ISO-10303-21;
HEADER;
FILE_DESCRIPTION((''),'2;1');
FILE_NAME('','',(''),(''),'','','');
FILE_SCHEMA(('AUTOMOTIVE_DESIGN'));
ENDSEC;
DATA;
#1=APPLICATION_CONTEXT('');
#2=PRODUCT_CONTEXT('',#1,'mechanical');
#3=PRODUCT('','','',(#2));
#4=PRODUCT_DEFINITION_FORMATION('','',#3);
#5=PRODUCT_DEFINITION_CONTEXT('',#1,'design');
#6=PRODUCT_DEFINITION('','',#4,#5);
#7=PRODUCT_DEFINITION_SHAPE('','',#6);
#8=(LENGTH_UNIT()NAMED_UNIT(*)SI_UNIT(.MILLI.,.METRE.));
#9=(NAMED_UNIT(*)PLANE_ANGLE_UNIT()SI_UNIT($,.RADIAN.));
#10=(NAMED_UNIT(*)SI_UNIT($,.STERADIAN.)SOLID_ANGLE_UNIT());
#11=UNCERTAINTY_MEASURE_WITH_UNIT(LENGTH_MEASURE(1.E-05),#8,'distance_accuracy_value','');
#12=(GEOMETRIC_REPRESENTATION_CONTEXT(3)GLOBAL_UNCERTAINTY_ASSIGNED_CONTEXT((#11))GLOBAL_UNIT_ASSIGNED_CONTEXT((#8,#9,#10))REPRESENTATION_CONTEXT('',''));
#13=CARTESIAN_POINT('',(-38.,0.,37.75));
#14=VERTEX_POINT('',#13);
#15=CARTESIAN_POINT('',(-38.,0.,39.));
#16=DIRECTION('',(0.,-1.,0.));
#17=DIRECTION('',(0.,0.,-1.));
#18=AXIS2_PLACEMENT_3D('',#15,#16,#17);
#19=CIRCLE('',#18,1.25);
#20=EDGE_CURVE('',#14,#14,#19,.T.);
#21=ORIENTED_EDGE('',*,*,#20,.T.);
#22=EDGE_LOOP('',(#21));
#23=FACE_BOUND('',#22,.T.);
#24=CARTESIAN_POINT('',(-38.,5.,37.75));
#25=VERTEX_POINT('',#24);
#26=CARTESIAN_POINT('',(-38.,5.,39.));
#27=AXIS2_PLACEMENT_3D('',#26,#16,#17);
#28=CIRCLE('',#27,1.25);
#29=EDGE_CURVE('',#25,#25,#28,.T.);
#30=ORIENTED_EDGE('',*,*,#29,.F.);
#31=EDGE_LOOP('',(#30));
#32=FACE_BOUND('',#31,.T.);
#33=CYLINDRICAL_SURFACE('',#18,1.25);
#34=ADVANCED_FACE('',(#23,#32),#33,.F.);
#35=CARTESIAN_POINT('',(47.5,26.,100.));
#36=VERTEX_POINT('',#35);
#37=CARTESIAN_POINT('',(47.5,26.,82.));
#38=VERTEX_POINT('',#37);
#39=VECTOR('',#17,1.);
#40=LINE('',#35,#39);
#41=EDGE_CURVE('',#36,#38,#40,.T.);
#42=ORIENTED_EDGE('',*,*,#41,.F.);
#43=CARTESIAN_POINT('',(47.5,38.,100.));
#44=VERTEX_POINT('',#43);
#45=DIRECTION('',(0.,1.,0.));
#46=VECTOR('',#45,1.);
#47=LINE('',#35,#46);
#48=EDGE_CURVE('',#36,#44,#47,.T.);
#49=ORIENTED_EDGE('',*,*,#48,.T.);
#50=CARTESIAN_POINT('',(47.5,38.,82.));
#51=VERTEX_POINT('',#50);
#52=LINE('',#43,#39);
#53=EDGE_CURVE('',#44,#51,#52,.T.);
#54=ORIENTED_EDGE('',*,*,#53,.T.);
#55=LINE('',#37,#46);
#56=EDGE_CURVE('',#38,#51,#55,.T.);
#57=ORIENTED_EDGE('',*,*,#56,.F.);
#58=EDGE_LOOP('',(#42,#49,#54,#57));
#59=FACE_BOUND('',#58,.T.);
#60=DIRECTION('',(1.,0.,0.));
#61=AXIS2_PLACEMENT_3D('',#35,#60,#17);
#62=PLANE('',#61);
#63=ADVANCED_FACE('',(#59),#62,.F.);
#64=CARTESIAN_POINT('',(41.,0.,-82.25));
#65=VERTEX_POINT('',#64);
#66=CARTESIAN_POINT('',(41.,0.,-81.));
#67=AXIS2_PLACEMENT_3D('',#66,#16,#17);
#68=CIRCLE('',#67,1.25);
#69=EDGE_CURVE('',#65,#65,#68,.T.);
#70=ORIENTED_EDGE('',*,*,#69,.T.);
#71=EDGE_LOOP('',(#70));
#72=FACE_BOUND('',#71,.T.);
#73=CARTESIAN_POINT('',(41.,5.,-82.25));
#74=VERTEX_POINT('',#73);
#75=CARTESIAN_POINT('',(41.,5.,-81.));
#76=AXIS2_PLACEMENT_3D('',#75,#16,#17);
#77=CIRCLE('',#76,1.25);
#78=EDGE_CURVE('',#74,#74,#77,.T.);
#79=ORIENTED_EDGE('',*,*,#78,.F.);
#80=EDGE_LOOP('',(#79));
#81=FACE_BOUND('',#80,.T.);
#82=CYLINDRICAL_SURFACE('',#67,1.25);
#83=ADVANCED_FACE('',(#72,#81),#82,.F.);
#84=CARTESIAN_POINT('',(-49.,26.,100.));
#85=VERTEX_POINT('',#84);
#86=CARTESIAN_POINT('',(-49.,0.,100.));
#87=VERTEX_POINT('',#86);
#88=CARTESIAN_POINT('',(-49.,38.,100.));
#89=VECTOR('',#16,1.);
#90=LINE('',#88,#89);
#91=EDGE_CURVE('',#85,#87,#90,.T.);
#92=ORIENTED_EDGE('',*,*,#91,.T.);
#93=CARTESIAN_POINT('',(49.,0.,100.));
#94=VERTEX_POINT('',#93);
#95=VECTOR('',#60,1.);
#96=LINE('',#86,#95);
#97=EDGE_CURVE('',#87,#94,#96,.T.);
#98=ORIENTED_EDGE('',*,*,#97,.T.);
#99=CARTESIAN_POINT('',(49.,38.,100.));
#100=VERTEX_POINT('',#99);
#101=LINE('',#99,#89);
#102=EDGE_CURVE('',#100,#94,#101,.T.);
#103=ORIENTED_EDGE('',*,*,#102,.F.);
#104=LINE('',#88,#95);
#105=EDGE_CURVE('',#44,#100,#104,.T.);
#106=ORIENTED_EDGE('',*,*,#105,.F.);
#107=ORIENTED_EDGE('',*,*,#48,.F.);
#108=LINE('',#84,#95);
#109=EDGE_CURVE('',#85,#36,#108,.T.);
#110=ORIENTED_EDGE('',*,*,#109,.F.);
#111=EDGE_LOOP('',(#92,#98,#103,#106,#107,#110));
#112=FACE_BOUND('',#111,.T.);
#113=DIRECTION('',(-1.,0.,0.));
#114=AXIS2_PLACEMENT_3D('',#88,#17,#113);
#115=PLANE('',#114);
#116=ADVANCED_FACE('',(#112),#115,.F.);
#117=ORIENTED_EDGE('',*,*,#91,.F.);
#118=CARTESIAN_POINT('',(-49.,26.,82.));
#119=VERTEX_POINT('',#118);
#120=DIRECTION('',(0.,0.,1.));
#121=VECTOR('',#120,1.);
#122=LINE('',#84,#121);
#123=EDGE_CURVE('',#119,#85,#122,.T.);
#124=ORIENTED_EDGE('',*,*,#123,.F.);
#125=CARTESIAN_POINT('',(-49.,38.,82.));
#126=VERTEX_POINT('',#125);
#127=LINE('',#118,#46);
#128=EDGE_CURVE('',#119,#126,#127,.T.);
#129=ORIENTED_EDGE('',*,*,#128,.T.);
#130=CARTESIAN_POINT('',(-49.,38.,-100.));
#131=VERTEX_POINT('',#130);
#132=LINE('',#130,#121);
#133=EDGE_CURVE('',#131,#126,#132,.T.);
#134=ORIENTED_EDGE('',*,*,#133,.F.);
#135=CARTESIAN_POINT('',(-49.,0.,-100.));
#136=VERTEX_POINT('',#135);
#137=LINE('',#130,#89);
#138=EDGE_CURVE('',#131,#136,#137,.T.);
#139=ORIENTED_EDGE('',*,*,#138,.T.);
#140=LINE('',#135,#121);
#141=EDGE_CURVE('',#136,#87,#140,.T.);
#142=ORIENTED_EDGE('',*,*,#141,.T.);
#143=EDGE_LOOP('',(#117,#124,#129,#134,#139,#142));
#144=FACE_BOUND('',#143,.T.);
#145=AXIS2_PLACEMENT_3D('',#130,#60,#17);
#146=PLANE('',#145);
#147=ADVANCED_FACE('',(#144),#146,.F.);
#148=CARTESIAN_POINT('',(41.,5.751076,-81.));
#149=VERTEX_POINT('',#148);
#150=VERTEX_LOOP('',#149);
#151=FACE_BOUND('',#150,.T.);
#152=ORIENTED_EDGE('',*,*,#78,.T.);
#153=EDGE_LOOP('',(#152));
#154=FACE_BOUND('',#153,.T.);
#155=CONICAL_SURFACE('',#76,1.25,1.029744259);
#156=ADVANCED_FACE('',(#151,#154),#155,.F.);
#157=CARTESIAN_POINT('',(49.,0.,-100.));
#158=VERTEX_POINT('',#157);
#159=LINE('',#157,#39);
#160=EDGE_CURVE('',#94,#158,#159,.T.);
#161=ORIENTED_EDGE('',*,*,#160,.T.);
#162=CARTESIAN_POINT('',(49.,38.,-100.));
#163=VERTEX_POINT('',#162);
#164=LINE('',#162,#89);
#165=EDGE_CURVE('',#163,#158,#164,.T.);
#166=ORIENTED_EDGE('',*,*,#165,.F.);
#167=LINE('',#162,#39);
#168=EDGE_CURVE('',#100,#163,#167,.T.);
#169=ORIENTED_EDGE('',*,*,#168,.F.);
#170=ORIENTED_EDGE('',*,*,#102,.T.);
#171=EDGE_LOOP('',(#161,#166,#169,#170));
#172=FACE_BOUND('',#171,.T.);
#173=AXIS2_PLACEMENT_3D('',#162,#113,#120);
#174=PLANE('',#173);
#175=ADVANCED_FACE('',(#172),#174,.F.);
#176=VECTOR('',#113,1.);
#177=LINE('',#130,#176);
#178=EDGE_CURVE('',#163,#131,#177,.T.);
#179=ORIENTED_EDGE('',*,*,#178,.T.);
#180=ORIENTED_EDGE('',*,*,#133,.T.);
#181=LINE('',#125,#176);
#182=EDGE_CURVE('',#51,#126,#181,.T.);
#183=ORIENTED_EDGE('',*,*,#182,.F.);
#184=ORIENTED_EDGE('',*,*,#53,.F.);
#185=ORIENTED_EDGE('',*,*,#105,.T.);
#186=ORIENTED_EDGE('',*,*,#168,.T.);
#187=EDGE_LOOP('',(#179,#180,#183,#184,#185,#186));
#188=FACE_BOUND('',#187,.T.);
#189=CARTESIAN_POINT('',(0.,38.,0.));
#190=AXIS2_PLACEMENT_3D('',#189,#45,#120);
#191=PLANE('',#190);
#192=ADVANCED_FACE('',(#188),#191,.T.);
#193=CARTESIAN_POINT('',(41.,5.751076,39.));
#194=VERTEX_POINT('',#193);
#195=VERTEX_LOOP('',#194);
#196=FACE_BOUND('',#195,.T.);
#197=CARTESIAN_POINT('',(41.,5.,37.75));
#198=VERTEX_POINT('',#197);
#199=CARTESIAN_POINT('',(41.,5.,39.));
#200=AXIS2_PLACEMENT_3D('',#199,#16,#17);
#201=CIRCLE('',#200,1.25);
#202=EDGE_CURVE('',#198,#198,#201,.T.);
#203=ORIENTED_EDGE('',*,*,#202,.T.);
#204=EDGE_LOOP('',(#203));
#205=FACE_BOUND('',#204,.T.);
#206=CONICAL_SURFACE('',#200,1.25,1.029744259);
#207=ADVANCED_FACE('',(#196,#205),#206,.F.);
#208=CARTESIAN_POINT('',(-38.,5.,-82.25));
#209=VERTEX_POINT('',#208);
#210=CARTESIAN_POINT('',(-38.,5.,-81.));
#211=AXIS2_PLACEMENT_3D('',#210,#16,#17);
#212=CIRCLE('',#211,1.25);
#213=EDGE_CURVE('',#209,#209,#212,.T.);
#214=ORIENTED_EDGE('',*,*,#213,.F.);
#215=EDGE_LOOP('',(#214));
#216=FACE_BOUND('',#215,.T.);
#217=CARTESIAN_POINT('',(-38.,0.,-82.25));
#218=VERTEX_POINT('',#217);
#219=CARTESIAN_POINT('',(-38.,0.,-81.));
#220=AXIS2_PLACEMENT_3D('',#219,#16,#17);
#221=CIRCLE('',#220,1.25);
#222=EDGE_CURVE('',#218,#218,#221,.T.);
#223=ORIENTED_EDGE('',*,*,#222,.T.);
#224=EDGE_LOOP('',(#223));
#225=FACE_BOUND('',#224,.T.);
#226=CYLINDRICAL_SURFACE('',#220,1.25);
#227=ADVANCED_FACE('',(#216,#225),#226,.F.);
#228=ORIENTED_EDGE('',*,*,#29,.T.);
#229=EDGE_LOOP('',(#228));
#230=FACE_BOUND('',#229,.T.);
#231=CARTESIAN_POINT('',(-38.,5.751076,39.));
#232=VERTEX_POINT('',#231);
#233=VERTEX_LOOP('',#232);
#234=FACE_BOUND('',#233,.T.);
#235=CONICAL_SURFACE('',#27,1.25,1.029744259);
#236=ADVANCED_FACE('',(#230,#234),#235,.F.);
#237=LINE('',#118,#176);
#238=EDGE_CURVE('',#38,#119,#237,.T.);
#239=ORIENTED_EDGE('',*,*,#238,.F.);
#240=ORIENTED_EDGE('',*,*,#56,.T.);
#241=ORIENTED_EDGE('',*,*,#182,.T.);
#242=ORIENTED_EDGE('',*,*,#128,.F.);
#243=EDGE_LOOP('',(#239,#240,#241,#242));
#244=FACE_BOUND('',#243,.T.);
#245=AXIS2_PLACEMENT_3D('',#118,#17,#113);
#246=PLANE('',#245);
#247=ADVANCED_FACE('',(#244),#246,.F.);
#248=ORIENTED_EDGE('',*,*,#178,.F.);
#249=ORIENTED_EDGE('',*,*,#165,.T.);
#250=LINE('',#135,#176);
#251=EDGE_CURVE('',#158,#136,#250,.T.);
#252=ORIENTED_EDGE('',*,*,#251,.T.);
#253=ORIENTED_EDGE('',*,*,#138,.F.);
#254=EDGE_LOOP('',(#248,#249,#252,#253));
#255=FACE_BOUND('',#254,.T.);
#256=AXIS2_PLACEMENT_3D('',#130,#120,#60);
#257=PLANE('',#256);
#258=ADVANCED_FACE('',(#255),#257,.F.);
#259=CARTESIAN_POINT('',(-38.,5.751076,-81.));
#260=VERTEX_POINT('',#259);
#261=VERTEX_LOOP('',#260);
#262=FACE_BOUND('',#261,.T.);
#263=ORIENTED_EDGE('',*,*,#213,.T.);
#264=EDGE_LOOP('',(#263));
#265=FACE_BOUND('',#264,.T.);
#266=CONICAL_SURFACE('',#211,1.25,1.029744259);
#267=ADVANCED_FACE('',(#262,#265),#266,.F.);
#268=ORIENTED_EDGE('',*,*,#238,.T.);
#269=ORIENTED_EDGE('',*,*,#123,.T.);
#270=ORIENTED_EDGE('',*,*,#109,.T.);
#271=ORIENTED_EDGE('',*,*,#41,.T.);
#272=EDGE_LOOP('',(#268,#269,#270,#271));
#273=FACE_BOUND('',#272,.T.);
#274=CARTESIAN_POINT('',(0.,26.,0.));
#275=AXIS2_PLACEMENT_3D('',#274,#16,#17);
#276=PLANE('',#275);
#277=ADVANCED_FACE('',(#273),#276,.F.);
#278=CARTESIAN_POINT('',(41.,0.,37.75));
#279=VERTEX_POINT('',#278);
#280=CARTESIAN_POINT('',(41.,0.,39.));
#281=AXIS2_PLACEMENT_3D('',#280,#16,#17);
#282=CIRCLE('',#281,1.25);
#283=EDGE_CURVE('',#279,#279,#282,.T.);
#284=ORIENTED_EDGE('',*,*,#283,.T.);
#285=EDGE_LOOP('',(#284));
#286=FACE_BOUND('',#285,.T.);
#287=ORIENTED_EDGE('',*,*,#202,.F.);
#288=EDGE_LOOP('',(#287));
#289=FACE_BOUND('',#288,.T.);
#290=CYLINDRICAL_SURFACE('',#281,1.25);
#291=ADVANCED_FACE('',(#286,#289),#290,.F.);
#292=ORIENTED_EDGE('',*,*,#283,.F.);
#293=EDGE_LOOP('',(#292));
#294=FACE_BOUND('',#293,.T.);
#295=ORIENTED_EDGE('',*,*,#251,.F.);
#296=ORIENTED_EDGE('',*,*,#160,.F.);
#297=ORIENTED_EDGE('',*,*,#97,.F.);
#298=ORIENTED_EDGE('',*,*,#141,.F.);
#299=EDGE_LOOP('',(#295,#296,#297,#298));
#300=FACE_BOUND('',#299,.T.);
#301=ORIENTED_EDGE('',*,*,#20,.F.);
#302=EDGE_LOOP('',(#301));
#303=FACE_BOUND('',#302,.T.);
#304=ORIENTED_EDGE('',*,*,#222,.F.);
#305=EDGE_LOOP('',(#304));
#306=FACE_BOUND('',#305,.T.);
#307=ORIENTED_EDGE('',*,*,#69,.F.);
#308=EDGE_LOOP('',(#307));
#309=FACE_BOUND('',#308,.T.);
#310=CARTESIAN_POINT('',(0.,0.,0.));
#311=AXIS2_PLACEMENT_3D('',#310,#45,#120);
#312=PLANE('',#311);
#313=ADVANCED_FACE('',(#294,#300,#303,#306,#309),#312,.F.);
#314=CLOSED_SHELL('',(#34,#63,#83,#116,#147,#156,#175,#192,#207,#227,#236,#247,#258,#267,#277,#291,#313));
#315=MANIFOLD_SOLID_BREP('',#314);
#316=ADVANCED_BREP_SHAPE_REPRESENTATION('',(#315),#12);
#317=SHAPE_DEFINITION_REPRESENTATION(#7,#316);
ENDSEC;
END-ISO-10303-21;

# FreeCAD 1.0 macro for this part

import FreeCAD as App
import Part
import Sketcher
from FreeCAD import Vector
Q = App.Units.Quantity


def add_polygon(sketch, points):
    """Adds a closed chain of lines whose ends are joined by coincident constraints."""
    first, n = sketch.GeometryCount, len(points)
    for a, b in zip(points, points[1:] + points[:1]):
        sketch.addGeometry(Part.LineSegment(App.Vector(*a, 0), App.Vector(*b, 0)), False)
    for i in range(n):
        sketch.addConstraint(Sketcher.Constraint("Coincident", first + i, 2, first + (i + 1) % n, 1))

doc = App.newDocument("Part")
body = doc.addObject("PartDesign::Body", "Body")

# Sketch on XZ plane
sketch1 = body.newObject("Sketcher::SketchObject", "Sketch")
sketch1.AttachmentSupport = (doc.getObject("XZ_Plane"), [""])
sketch1.MapMode = "FlatFace"
add_polygon(sketch1, [(-49, -100), (-49, 100), (49, 100), (49, -100)])  # lines 0-3
sketch1.addConstraint([
    Sketcher.Constraint("Vertical", 0),
    Sketcher.Constraint("Horizontal", 1),
    Sketcher.Constraint("Vertical", 2),
    Sketcher.Constraint("Horizontal", 3),
    Sketcher.Constraint("Symmetric", 0, 2, 2, 2, -1, 1),
    Sketcher.Constraint("DistanceX", 1, 1, 1, 2, Q("98 mm")),
    Sketcher.Constraint("DistanceY", 0, 1, 0, 2, Q("200 mm")),
])
pad1 = body.newObject("PartDesign::Pad", "Pad")
pad1.Profile = sketch1
pad1.Length = 38
pad1.Reversed = True

# Sketch on XZ plane
sketch2 = body.newObject("Sketcher::SketchObject", "Sketch001")
sketch2.AttachmentSupport = (doc.getObject("XZ_Plane"), [""])
sketch2.MapMode = "FlatFace"
sketch2.AttachmentOffset = App.Placement(Vector(0, 0, -38), App.Rotation())
add_polygon(sketch2, [(-49, 82), (-49, 100), (48, 100), (48, 82)])  # lines 0-3
sketch2.addConstraint([
    Sketcher.Constraint("Vertical", 0),
    Sketcher.Constraint("Horizontal", 1),
    Sketcher.Constraint("Vertical", 2),
    Sketcher.Constraint("Horizontal", 3),
    Sketcher.Constraint("DistanceY", 0, 1, 0, 2, Q("18 mm")),
    Sketcher.Constraint("DistanceX", 1, 1, 1, 2, Q("96.5 mm")),
    Sketcher.Constraint("DistanceX", 0, 2, -1, 1, Q("49 mm")),
    Sketcher.Constraint("DistanceY", -1, 1, 0, 2, Q("100 mm")),
])
pocket1 = body.newObject("PartDesign::Pocket", "Pocket")
pocket1.Profile = sketch2
pocket1.Length = 12
pocket1.Reversed = True

# Sketch on XZ plane
sketch3 = body.newObject("Sketcher::SketchObject", "Sketch002")
sketch3.AttachmentSupport = (doc.getObject("XZ_Plane"), [""])
sketch3.MapMode = "FlatFace"
sketch3.addGeometry([
    Part.Circle(Vector(-38, 39, 0), Vector(0, 0, 1), 1.2),
    Part.Circle(Vector(41, 39, 0), Vector(0, 0, 1), 1.2),
    Part.Circle(Vector(-38, -81, 0), Vector(0, 0, 1), 1.2),
    Part.Circle(Vector(41, -81, 0), Vector(0, 0, 1), 1.2),
], False)
sketch3.addConstraint([
    Sketcher.Constraint("Equal", 0, 1),
    Sketcher.Constraint("Equal", 1, 2),
    Sketcher.Constraint("Equal", 2, 3),
    Sketcher.Constraint("Horizontal", 0, 3, 1, 3),
    Sketcher.Constraint("Horizontal", 2, 3, 3, 3),
    Sketcher.Constraint("Vertical", 0, 3, 2, 3),
    Sketcher.Constraint("Vertical", 1, 3, 3, 3),
    Sketcher.Constraint("Diameter", 0, Q("2.5 mm")),
    Sketcher.Constraint("DistanceX", 0, 3, -1, 1, Q("38 mm")),
    Sketcher.Constraint("DistanceY", -1, 1, 0, 3, Q("39 mm")),
    Sketcher.Constraint("DistanceX", -1, 1, 1, 3, Q("41 mm")),
    Sketcher.Constraint("DistanceY", 2, 3, -1, 1, Q("81 mm")),
])
doc.recompute()
hole = body.newObject("PartDesign::Hole", "Hole")
hole.Profile = sketch3
hole.ThreadType = "None"
hole.Diameter = 2.5
hole.DepthType = "Dimension"
hole.Depth = 5
hole.DrillPoint = "Angled"
hole.DrillPointAngle = 118

doc.recompute()
